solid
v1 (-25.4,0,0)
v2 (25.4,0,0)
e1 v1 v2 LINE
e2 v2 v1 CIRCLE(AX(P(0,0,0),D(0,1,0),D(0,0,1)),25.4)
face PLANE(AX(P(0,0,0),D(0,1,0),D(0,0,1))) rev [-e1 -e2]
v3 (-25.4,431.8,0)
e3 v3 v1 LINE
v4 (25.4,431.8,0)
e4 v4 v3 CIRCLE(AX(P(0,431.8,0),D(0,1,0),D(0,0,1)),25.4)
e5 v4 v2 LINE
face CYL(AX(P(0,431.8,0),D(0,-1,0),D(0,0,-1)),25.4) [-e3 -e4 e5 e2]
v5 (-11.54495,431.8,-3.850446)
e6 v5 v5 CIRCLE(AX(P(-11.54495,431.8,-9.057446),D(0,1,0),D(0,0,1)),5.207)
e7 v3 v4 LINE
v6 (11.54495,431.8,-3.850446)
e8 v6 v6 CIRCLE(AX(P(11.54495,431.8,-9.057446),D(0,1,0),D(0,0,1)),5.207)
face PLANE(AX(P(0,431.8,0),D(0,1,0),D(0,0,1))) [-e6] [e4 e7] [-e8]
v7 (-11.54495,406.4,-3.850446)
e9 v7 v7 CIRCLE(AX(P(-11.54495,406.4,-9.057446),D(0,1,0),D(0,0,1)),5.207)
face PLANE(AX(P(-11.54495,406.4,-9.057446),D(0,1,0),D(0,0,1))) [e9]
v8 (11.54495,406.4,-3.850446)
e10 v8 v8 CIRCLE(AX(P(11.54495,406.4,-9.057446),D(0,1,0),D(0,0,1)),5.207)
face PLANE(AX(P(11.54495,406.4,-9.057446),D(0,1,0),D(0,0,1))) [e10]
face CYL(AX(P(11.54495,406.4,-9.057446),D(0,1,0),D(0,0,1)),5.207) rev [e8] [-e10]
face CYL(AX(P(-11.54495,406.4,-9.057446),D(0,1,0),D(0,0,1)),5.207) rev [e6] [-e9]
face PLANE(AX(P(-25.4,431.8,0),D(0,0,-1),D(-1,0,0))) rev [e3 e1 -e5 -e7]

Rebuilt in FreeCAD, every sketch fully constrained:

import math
import FreeCAD as App
import Part
import Sketcher
from FreeCAD import Vector
Q = App.Units.Quantity

doc = App.newDocument("Part")
body = doc.addObject("PartDesign::Body", "Body")

# Sketch on XZ plane
sketch1 = doc.addObject("Sketcher::SketchObject", "Sketch")
body.addObject(sketch1)
sketch1.AttachmentSupport = (doc.XZ_Plane, [""])
sketch1.MapMode = "FlatFace"
sketch1.addGeometry([
    Part.LineSegment(Vector(-25, 0, 0), Vector(25, 0, 0)),
    Part.ArcOfCircle(Part.Circle(Vector(0, 0, 0), Vector(0, 0, 1), 25), math.radians(180), math.radians(360)),
], False)
sketch1.addConstraint([
    Sketcher.Constraint("Coincident", 0, 1, 1, 1),
    Sketcher.Constraint("Coincident", 1, 2, 0, 2),
    Sketcher.Constraint("Horizontal", 0),
    Sketcher.Constraint("Coincident", 1, 3, -1, 1),
    Sketcher.Constraint("PointOnObject", 0, 1, -1),
    Sketcher.Constraint("Radius", 1, Q("1 in")),
])
pad1 = doc.addObject("PartDesign::Pad", "Pad")
body.addObject(pad1)
pad1.Profile = sketch1
pad1.Length = Q("17 in")
pad1.Reversed = True

# Sketch on XZ plane
sketch2 = doc.addObject("Sketcher::SketchObject", "Sketch001")
body.addObject(sketch2)
sketch2.AttachmentSupport = (doc.XZ_Plane, [""])
sketch2.MapMode = "FlatFace"
sketch2.AttachmentOffset = App.Placement(Vector(0, 0, -17 * 25.4), App.Rotation())
sketch2.addGeometry([
    Part.Circle(Vector(-12, -9, 0), Vector(0, 0, 1), 5),
    Part.Circle(Vector(12, -9, 0), Vector(0, 0, 1), 5),
], False)
sketch2.addConstraint([
    Sketcher.Constraint("Equal", 0, 1),
    Sketcher.Constraint("Symmetric", 0, 3, 1, 3, -2),
    Sketcher.Constraint("Diameter", 0, Q("0.41 in")),
    Sketcher.Constraint("DistanceX", 0, 3, 1, 3, Q("23.0899 mm")),
    Sketcher.Constraint("DistanceY", 0, 3, -1, 1, Q("9.057446 mm")),
])
pocket1 = doc.addObject("PartDesign::Pocket", "Pocket")
body.addObject(pocket1)
pocket1.Profile = sketch2
pocket1.Length = Q("1 in")
pocket1.Reversed = True

doc.recompute()
